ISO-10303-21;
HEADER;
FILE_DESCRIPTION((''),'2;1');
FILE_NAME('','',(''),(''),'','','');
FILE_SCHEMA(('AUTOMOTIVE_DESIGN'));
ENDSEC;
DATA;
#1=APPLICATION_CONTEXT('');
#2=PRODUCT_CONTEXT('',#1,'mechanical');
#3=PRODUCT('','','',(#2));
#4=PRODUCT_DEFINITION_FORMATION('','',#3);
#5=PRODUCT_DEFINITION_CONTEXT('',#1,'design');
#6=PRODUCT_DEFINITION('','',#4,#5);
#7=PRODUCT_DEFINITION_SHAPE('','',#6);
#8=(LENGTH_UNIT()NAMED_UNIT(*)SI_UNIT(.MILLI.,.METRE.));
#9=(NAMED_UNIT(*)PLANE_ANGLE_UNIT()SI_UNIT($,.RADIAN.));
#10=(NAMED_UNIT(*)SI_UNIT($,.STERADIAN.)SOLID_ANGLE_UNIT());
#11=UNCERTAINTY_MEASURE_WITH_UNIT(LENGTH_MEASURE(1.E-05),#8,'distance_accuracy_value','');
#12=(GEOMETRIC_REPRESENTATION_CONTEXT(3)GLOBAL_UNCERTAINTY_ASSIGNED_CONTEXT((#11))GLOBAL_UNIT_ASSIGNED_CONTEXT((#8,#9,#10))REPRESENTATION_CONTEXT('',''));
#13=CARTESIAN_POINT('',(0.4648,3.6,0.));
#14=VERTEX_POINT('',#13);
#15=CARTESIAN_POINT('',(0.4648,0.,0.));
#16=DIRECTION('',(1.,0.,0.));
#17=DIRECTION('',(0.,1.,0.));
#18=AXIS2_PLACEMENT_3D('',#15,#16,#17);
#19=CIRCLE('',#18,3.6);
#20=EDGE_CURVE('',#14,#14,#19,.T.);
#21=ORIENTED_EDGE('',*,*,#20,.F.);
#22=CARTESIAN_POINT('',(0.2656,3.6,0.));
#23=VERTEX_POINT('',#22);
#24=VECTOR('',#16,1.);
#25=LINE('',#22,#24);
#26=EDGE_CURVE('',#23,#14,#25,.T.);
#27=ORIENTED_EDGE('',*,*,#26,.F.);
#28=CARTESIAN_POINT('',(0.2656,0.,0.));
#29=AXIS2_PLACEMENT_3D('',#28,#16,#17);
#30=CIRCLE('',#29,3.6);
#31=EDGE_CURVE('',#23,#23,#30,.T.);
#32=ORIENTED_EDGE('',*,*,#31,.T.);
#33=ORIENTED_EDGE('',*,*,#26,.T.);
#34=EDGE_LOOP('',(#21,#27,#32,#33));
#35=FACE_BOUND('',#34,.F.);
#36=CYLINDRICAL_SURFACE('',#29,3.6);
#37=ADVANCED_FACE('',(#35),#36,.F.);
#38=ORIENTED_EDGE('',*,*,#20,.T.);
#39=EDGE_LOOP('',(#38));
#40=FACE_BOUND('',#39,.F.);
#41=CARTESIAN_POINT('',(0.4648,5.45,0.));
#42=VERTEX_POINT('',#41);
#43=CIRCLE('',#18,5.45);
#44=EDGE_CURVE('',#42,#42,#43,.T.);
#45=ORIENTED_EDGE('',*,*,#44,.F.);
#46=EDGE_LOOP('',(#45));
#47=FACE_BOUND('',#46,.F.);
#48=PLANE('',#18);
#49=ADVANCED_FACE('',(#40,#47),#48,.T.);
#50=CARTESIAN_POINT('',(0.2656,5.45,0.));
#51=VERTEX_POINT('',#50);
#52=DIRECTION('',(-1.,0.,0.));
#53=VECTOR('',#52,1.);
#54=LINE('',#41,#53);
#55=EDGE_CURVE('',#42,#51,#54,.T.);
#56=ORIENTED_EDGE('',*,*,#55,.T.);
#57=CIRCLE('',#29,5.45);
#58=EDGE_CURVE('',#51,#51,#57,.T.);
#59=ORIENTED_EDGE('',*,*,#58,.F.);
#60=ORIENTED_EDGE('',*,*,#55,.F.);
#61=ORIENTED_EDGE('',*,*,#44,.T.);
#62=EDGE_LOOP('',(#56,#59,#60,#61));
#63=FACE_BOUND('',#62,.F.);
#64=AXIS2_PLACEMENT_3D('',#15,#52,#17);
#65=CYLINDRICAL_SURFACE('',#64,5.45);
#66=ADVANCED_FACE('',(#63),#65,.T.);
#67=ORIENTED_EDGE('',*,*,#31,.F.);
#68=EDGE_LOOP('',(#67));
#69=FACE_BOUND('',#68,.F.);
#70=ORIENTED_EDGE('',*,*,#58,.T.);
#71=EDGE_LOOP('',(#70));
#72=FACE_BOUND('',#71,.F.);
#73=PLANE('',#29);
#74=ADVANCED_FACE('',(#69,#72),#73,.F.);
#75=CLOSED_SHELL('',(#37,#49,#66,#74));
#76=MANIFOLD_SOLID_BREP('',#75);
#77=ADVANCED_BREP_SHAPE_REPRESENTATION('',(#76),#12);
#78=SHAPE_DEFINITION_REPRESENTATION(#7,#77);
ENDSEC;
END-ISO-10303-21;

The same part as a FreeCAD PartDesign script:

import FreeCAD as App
import Part
import Sketcher

V = App.Vector
Q = App.Units.Quantity

doc = App.newDocument("Part")
body = doc.addObject("PartDesign::Body", "Body")

# Sketch on XY plane
sketch1 = doc.addObject("Sketcher::SketchObject", "Sketch")
body.addObject(sketch1)
sketch1.AttachmentSupport = (doc.XY_Plane, [""])
sketch1.MapMode = "FlatFace"
sketch1.addGeometry([
    Part.LineSegment(V(0.27, 5.45, 0), V(0.27, 3.6, 0)),
    Part.LineSegment(V(0.27, 3.6, 0), V(0.46, 3.6, 0)),
    Part.LineSegment(V(0.46, 3.6, 0), V(0.46, 5.45, 0)),
    Part.LineSegment(V(0.46, 5.45, 0), V(0.27, 5.45, 0)),
], False)
sketch1.addConstraint([
    Sketcher.Constraint("Coincident", 0, 2, 1, 1),
    Sketcher.Constraint("Coincident", 1, 2, 2, 1),
    Sketcher.Constraint("Coincident", 2, 2, 3, 1),
    Sketcher.Constraint("Coincident", 3, 2, 0, 1),
    Sketcher.Constraint("Vertical", 0),
    Sketcher.Constraint("Horizontal", 1),
    Sketcher.Constraint("Vertical", 2),
    Sketcher.Constraint("Horizontal", 3),
    Sketcher.Constraint("DistanceY", 0, 2, 0, 1, Q("1.85 mm")),
    Sketcher.Constraint("DistanceY", -1, 1, 0, 2, Q("3.6 mm")),
    Sketcher.Constraint("DistanceX", 1, 1, 1, 2, Q("0.1992 mm")),
    Sketcher.Constraint("DistanceX", -1, 1, 0, 2, Q("0.2656 mm")),
])
revolution = doc.addObject("PartDesign::Revolution", "Revolution")
body.addObject(revolution)
revolution.Profile = sketch1
revolution.ReferenceAxis = (sketch1, ["H_Axis"])
revolution.Angle = 360

doc.recompute()
